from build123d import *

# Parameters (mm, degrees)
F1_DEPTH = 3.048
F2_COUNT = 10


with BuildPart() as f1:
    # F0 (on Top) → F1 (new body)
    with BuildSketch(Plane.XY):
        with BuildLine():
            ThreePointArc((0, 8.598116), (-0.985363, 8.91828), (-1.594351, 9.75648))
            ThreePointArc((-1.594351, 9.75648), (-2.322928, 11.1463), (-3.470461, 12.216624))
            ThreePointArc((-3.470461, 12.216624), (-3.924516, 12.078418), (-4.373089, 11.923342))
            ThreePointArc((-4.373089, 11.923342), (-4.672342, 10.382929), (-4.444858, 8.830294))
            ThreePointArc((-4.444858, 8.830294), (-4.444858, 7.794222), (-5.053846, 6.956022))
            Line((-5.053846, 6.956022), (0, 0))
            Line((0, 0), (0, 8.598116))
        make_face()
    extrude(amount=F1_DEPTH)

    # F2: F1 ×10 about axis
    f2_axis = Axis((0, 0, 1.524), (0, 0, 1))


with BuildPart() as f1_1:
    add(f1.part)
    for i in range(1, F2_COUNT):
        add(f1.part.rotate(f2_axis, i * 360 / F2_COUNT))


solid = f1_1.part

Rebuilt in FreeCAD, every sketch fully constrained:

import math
import FreeCAD as App
import Part
import Sketcher
Q = App.Units.Quantity

doc = App.newDocument("Part")
body = doc.addObject("PartDesign::Body", "Body")

# Sketch on XY plane
sketch1 = body.newObject("Sketcher::SketchObject", "Sketch")
sketch1.AttachmentSupport = (doc.getObject("XY_Plane"), [""])
sketch1.MapMode = "FlatFace"
sketch1.addGeometry(Part.ArcOfCircle(Part.Circle(App.Vector(0, 10.3, 0), App.Vector(0, 0, 1), 1.7), math.radians(-162), math.radians(-90)), False)
sketch1.addGeometry(Part.ArcOfCircle(Part.Circle(App.Vector(-6, 8.3, 0), App.Vector(0, 0, 1), 4.7), math.radians(18), math.radians(57)), False)
sketch1.addGeometry(Part.ArcOfCircle(Part.Circle(App.Vector(0, 0, 0), App.Vector(0, 0, 1), 12.7), math.radians(105.86), math.radians(110.14)), False)
sketch1.addGeometry(Part.ArcOfCircle(Part.Circle(App.Vector(0, 10.3, 0), App.Vector(0, 0, 1), 4.7), math.radians(159), math.radians(198)), False)
sketch1.addGeometry(Part.ArcOfCircle(Part.Circle(App.Vector(-6, 8.3, 0), App.Vector(0, 0, 1), 1.7), math.radians(-54), math.radians(18)), False)
sketch1.addGeometry(Part.LineSegment(App.Vector(-5.1, 7, 0), App.Vector(0, 0, 0)), False)
sketch1.addGeometry(Part.LineSegment(App.Vector(0, 0, 0), App.Vector(0, 8.6, 0)), False)
sketch1.addConstraint(Sketcher.Constraint("Tangent", 0, 1, 1, 1))
sketch1.addConstraint(Sketcher.Constraint("Coincident", 1, 2, 2, 1))
sketch1.addConstraint(Sketcher.Constraint("Coincident", 2, 2, 3, 1))
sketch1.addConstraint(Sketcher.Constraint("Tangent", 3, 2, 4, 2))
sketch1.addConstraint(Sketcher.Constraint("Coincident", 4, 1, 5, 1))
sketch1.addConstraint(Sketcher.Constraint("Coincident", 5, 2, 6, 1))
sketch1.addConstraint(Sketcher.Constraint("Coincident", 6, 2, 0, 2))
sketch1.addConstraint(Sketcher.Constraint("Vertical", 6))
sketch1.addConstraint(Sketcher.Constraint("Coincident", 5, 2, -1, 1))
sketch1.addConstraint(Sketcher.Constraint("Coincident", 3, 3, 0, 3))
sketch1.addConstraint(Sketcher.Constraint("Coincident", 4, 3, 1, 3))
sketch1.addConstraint(Sketcher.Constraint("Equal", 0, 4))
sketch1.addConstraint(Sketcher.Constraint("PointOnObject", 0, 3, -2))
sketch1.addConstraint(Sketcher.Constraint("Angle", 5, Q("-53.999999 deg")))
sketch1.addConstraint(Sketcher.Constraint("Radius", 0, Q("0.066 in")))
sketch1.addConstraint(Sketcher.Constraint("Radius", 1, Q("0.1840001 in")))
sketch1.addConstraint(Sketcher.Constraint("Radius", 2, 12.699406))
sketch1.addConstraint(Sketcher.Constraint("DistanceY", 6, 1, 6, 2, 8.598116))
sketch1.addConstraint(Sketcher.Constraint("DistanceX", 1, 3, -1, 1, 6.039211))
sketch1.addConstraint(Sketcher.Constraint("DistanceX", 2, 3, -1, 1, 0.000179))
sketch1.addConstraint(Sketcher.Constraint("DistanceX", 1, 2, -1, 1, 3.470461))
pad1 = body.newObject("PartDesign::Pad", "Pad")
pad1.Profile = sketch1
pad1.Length = Q("0.12 in")
body2 = doc.addObject("PartDesign::Body", "Body001")
doc.recompute()

body2.BaseFeature = body
doc.recompute()

body3 = doc.addObject("PartDesign::Body", "Body002")
body3.BaseFeature = body
body3.Placement = App.Placement(App.Vector(0, 0, 0), App.Rotation(App.Vector(0, 0, 1), 36))
boolean = body2.newObject("PartDesign::Boolean", "Boolean")
boolean.Type = "Fuse"
boolean.addObjects([body3])
doc.recompute()

body4 = doc.addObject("PartDesign::Body", "Body003")
body4.BaseFeature = body
body4.Placement = App.Placement(App.Vector(0, 0, 0), App.Rotation(App.Vector(0, 0, 1), 72))
boolean2 = body2.newObject("PartDesign::Boolean", "Boolean001")
boolean2.Type = "Fuse"
boolean2.addObjects([body4])
doc.recompute()

body5 = doc.addObject("PartDesign::Body", "Body004")
body5.BaseFeature = body
body5.Placement = App.Placement(App.Vector(0, 0, 0), App.Rotation(App.Vector(0, 0, 1), 108))
boolean3 = body2.newObject("PartDesign::Boolean", "Boolean002")
boolean3.Type = "Fuse"
boolean3.addObjects([body5])
doc.recompute()

body6 = doc.addObject("PartDesign::Body", "Body005")
body6.BaseFeature = body
body6.Placement = App.Placement(App.Vector(0, 0, 0), App.Rotation(App.Vector(0, 0, 1), 144))
boolean4 = body2.newObject("PartDesign::Boolean", "Boolean003")
boolean4.Type = "Fuse"
boolean4.addObjects([body6])
doc.recompute()

body7 = doc.addObject("PartDesign::Body", "Body006")
body7.BaseFeature = body
body7.Placement = App.Placement(App.Vector(0, 0, 0), App.Rotation(App.Vector(0, 0, 1), 180))
boolean5 = body2.newObject("PartDesign::Boolean", "Boolean004")
boolean5.Type = "Fuse"
boolean5.addObjects([body7])
doc.recompute()

body8 = doc.addObject("PartDesign::Body", "Body007")
body8.BaseFeature = body
body8.Placement = App.Placement(App.Vector(0, 0, 0), App.Rotation(App.Vector(0, 0, 1), 216))
boolean6 = body2.newObject("PartDesign::Boolean", "Boolean005")
boolean6.Type = "Fuse"
boolean6.addObjects([body8])
doc.recompute()

body9 = doc.addObject("PartDesign::Body", "Body008")
body9.BaseFeature = body
body9.Placement = App.Placement(App.Vector(0, 0, 0), App.Rotation(App.Vector(0, 0, 1), 252))
boolean7 = body2.newObject("PartDesign::Boolean", "Boolean006")
boolean7.Type = "Fuse"
boolean7.addObjects([body9])
doc.recompute()

body10 = doc.addObject("PartDesign::Body", "Body009")
body10.BaseFeature = body
body10.Placement = App.Placement(App.Vector(0, 0, 0), App.Rotation(App.Vector(0, 0, 1), 288))
boolean8 = body2.newObject("PartDesign::Boolean", "Boolean007")
boolean8.Type = "Fuse"
boolean8.addObjects([body10])
doc.recompute()

body.Placement = App.Placement(App.Vector(0, 0, 0), App.Rotation(App.Vector(0, 0, 1), 324))
boolean9 = body2.newObject("PartDesign::Boolean", "Boolean008")
boolean9.Type = "Fuse"
boolean9.addObjects([body])

doc.recompute()
